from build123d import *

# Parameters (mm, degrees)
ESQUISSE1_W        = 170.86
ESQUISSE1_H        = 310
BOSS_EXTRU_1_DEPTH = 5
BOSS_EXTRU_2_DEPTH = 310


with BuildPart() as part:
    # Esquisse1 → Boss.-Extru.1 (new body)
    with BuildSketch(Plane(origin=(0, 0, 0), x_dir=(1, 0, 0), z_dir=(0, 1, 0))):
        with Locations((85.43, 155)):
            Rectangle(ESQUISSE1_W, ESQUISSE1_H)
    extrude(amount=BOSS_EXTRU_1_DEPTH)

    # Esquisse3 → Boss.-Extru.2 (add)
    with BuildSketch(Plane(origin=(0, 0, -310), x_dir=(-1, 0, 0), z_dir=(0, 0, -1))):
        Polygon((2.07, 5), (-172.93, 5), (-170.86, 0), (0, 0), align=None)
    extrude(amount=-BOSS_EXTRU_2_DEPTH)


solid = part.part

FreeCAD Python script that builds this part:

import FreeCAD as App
import Part
import Sketcher

V = App.Vector
Q = App.Units.Quantity


def add_polygon(sketch, points):
    """Adds a closed chain of lines whose ends are joined by coincident constraints."""
    first, n = sketch.GeometryCount, len(points)
    for a, b in zip(points, points[1:] + points[:1]):
        sketch.addGeometry(Part.LineSegment(App.Vector(*a, 0), App.Vector(*b, 0)), False)
    for i in range(n):
        sketch.addConstraint(Sketcher.Constraint("Coincident", first + i, 2, first + (i + 1) % n, 1))

doc = App.newDocument("Part")
params = doc.addObject("Spreadsheet::Sheet", "Params")
for row, (alias, value) in enumerate([
    ("sketch1_height", "310 mm"),
    ("sketch1_width", "170.86 mm"),
    ("pad1_length", "5 mm"),
    ("sketch2_width", "175 mm"),
    ("sketch2_width2", "170.86 mm"),
    ("pad2_length", "310 mm"),
], start=1):
    params.set(f"A{row}", alias)
    params.set(f"B{row}", "=" + value)
    params.setAlias(f"B{row}", alias)

body = doc.addObject("PartDesign::Body", "Body")

sketch1 = doc.addObject("Sketcher::SketchObject", "Sketch")
body.addObject(sketch1)
sketch1.AttachmentSupport = (doc.XZ_Plane, [""])
sketch1.MapMode = "FlatFace"
add_polygon(sketch1, [(0, -310), (0, 0), (171, 0), (171, -310)])
sketch1.addConstraint(Sketcher.Constraint("Vertical", 0))
sketch1.addConstraint(Sketcher.Constraint("Horizontal", 1))
sketch1.addConstraint(Sketcher.Constraint("Vertical", 2))
sketch1.addConstraint(Sketcher.Constraint("Horizontal", 3))
sketch1.addConstraint(Sketcher.Constraint("Coincident", 0, 2, -1, 1))
sketch1.addConstraint(Sketcher.Constraint("DistanceY", 0, 1, 0, 2, Q("310 mm")))
sketch1.addConstraint(Sketcher.Constraint("DistanceX", 1, 1, 1, 2, Q("170.86 mm")))
sketch1.setExpression("Constraints[9]", "Params.sketch1_height")
sketch1.setExpression("Constraints[10]", "Params.sketch1_width")
pad1 = doc.addObject("PartDesign::Pad", "Pad")
body.addObject(pad1)
pad1.Profile = sketch1
pad1.setExpression("Length", "Params.pad1_length")
pad1.Reversed = True

sketch2 = doc.addObject("Sketcher::SketchObject", "Sketch001")
body.addObject(sketch2)
sketch2.AttachmentSupport = (doc.XY_Plane, [""])
sketch2.MapMode = "FlatFace"
sketch2.AttachmentOffset = App.Placement(V(0, 0, -310), App.Rotation())
add_polygon(sketch2, [(-2, 5), (173, 5), (171, 0), (0, 0)])
sketch2.addConstraint(Sketcher.Constraint("Horizontal", 0))
sketch2.addConstraint(Sketcher.Constraint("Horizontal", 2))
sketch2.addConstraint(Sketcher.Constraint("Coincident", 2, 2, -1, 1))
sketch2.addConstraint(Sketcher.Constraint("Equal", 1, 3))
sketch2.addConstraint(Sketcher.Constraint("DistanceX", 0, 1, 0, 2, Q("175 mm")))
sketch2.addConstraint(Sketcher.Constraint("DistanceY", -1, 1, 0, 2, Q("5 mm")))
sketch2.addConstraint(Sketcher.Constraint("DistanceX", 2, 2, 2, 1, Q("170.86 mm")))
sketch2.setExpression("Constraints[8]", "Params.sketch2_width")
sketch2.setExpression("Constraints[10]", "Params.sketch2_width2")
pad2 = doc.addObject("PartDesign::Pad", "Pad001")
body.addObject(pad2)
pad2.Profile = sketch2
pad2.setExpression("Length", "Params.pad2_length")

doc.recompute()
